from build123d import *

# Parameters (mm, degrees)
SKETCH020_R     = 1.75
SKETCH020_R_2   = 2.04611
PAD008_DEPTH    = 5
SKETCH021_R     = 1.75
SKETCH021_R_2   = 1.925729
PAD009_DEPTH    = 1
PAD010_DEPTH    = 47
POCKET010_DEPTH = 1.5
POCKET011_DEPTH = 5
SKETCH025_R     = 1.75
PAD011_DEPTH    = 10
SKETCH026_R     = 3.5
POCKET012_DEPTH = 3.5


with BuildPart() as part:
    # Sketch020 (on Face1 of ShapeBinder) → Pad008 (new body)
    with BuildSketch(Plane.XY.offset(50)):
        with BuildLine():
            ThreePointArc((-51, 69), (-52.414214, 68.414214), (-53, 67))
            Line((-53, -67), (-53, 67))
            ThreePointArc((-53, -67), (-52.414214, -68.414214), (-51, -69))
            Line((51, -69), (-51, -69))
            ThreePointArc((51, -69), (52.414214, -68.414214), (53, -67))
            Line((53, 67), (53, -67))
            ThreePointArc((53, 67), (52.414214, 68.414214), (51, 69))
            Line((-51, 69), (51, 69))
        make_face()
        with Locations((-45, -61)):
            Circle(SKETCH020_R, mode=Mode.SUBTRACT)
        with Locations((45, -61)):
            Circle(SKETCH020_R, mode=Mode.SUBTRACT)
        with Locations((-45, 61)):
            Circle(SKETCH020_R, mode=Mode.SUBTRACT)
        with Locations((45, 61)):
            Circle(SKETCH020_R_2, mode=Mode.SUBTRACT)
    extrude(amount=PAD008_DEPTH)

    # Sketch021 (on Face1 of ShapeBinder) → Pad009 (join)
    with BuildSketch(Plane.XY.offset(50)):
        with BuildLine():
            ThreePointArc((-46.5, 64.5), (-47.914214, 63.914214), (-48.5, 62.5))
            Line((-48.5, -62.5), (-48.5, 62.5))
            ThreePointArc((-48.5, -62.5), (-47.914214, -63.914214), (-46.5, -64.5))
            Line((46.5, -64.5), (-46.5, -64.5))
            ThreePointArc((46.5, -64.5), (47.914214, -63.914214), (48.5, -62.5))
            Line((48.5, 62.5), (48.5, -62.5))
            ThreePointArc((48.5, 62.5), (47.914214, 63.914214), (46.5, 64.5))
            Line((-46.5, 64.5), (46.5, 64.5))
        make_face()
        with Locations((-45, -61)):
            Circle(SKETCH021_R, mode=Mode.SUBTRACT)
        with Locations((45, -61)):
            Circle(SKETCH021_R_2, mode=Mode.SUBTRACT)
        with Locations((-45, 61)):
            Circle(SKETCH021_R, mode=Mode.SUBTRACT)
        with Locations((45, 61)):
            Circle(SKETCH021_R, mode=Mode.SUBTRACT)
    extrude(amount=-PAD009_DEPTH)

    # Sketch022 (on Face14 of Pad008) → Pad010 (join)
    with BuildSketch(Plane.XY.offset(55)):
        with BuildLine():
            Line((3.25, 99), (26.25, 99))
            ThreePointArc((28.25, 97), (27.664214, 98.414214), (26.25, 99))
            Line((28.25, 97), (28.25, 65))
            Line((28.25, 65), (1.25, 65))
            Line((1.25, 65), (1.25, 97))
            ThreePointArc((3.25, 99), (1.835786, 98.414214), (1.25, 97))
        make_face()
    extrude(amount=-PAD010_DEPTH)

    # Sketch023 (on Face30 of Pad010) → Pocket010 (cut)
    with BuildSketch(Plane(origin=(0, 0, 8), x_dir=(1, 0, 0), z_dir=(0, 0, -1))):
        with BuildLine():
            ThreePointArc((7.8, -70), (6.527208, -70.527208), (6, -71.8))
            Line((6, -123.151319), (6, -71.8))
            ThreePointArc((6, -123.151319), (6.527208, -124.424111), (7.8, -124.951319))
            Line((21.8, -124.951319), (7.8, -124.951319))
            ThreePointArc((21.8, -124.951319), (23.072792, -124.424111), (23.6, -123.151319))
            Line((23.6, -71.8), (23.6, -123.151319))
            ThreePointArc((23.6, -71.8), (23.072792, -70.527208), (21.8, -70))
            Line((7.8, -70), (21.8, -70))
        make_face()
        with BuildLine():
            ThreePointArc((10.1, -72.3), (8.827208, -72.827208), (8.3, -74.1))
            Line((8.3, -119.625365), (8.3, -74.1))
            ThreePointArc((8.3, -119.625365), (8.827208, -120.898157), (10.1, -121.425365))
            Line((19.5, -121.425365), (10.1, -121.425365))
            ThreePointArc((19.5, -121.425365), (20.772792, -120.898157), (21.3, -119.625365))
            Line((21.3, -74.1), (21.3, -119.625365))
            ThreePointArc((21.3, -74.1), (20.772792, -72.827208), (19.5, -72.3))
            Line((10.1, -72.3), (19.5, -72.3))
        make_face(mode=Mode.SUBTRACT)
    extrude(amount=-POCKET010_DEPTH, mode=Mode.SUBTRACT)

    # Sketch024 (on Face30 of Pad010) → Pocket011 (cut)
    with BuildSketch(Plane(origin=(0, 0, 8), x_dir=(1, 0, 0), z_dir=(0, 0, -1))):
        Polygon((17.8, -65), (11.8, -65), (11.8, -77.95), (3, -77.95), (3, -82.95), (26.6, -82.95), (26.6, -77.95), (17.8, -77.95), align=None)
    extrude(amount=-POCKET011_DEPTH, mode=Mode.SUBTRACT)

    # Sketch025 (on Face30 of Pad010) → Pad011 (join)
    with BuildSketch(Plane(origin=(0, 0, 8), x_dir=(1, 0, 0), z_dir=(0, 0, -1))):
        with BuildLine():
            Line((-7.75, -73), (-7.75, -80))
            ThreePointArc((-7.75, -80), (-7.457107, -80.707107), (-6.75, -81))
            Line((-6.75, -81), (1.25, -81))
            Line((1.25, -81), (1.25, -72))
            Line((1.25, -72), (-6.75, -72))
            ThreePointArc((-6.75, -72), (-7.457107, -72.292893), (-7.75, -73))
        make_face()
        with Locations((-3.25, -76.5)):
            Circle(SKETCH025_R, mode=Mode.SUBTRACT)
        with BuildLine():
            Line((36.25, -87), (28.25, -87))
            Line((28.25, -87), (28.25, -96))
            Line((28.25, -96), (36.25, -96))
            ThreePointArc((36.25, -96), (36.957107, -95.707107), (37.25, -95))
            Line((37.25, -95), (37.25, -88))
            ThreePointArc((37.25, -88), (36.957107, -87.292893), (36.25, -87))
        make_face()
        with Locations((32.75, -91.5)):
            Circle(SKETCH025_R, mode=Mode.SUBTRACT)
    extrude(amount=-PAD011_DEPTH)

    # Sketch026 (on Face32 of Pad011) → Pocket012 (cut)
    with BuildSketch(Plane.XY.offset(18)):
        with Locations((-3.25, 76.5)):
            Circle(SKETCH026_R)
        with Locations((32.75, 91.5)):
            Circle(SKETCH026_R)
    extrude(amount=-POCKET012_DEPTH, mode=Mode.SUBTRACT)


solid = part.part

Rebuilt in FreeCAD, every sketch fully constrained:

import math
import FreeCAD as App
import Part
import Sketcher
Q = App.Units.Quantity

doc = App.newDocument("Part")
params = doc.addObject("Spreadsheet::Sheet", "Params")
for row, (alias, value) in enumerate([
    ("sketch1_radius", "1.999999 mm"),
    ("sketch1_diameter", "3.5 mm"),
    ("sketch1_width", "102 mm"),
    ("sketch1_height", "134 mm"),
    ("pad1_length", "5 mm"),
    ("sketch2_radius", "1.999999 mm"),
    ("sketch2_diameter", "3.5 mm"),
    ("sketch2_width", "93 mm"),
    ("sketch2_height", "125 mm"),
    ("pad2_length", "1 mm"),
    ("sketch3_radius", "1.999999 mm"),
    ("sketch3_width", "23 mm"),
    ("sketch3_height", "32 mm"),
    ("pad3_length", "47 mm"),
    ("sketch4_radius", "1.800001 mm"),
    ("sketch4_width", "14 mm"),
    ("sketch4_width2", "9.4 mm"),
    ("pocket1_length", "1.5 mm"),
    ("sketch5_width", "6 mm"),
    ("sketch5_height", "5 mm"),
    ("sketch5_width2", "8.8 mm"),
    ("sketch5_height2", "12.95 mm"),
    ("pocket2_length", "5 mm"),
    ("sketch6_radius", "0.999999 mm"),
    ("sketch6_diameter", "3.5 mm"),
    ("sketch6_width", "8 mm"),
    ("sketch6_height", "7 mm"),
    ("pad4_length", "10 mm"),
    ("sketch7_diameter", "7 mm"),
    ("pocket3_length", "3.5 mm"),
], start=1):
    params.set(f"A{row}", alias)
    params.set(f"B{row}", "=" + value)
    params.setAlias(f"B{row}", alias)

body = doc.addObject("PartDesign::Body", "Body")

# Sketch on XY plane
sketch1 = doc.addObject("Sketcher::SketchObject", "Sketch")
body.addObject(sketch1)
sketch1.AttachmentSupport = (doc.XY_Plane, [""])
sketch1.MapMode = "FlatFace"
sketch1.AttachmentOffset = App.Placement(App.Vector(0, 0, 50), App.Rotation())
sketch1.addGeometry(Part.ArcOfCircle(Part.Circle(App.Vector(-51, 67, 0), App.Vector(0, 0, 1), 2), math.radians(90), math.radians(180)), False)
sketch1.addGeometry(Part.LineSegment(App.Vector(-53, 67, 0), App.Vector(-53, -67, 0)), False)
sketch1.addGeometry(Part.ArcOfCircle(Part.Circle(App.Vector(-51, -67, 0), App.Vector(0, 0, 1), 2), math.radians(180), math.radians(270)), False)
sketch1.addGeometry(Part.LineSegment(App.Vector(-51, -69, 0), App.Vector(51, -69, 0)), False)
sketch1.addGeometry(Part.ArcOfCircle(Part.Circle(App.Vector(51, -67, 0), App.Vector(0, 0, 1), 2), math.radians(-90), math.radians(0)), False)
sketch1.addGeometry(Part.LineSegment(App.Vector(53, -67, 0), App.Vector(53, 67, 0)), False)
sketch1.addGeometry(Part.ArcOfCircle(Part.Circle(App.Vector(51, 67, 0), App.Vector(0, 0, 1), 2), math.radians(0), math.radians(90)), False)
sketch1.addGeometry(Part.LineSegment(App.Vector(51, 69, 0), App.Vector(-51, 69, 0)), False)
sketch1.addGeometry(Part.Circle(App.Vector(-45, -61, 0), App.Vector(0, 0, 1), 1.8), False)
sketch1.addGeometry(Part.Circle(App.Vector(45, -61, 0), App.Vector(0, 0, 1), 1.8), False)
sketch1.addGeometry(Part.Circle(App.Vector(-45, 61, 0), App.Vector(0, 0, 1), 1.8), False)
sketch1.addGeometry(Part.Circle(App.Vector(45, 61, 0), App.Vector(0, 0, 1), 2), False)
sketch1.addConstraint(Sketcher.Constraint("Tangent", 0, 2, 1, 1))
sketch1.addConstraint(Sketcher.Constraint("Tangent", 1, 2, 2, 1))
sketch1.addConstraint(Sketcher.Constraint("Tangent", 2, 2, 3, 1))
sketch1.addConstraint(Sketcher.Constraint("Tangent", 3, 2, 4, 1))
sketch1.addConstraint(Sketcher.Constraint("Tangent", 4, 2, 5, 1))
sketch1.addConstraint(Sketcher.Constraint("Tangent", 5, 2, 6, 1))
sketch1.addConstraint(Sketcher.Constraint("Tangent", 6, 2, 7, 1))
sketch1.addConstraint(Sketcher.Constraint("Tangent", 7, 2, 0, 1))
sketch1.addConstraint(Sketcher.Constraint("Vertical", 1))
sketch1.addConstraint(Sketcher.Constraint("Horizontal", 3))
sketch1.addConstraint(Sketcher.Constraint("Vertical", 5))
sketch1.addConstraint(Sketcher.Constraint("Horizontal", 7))
sketch1.addConstraint(Sketcher.Constraint("Equal", 0, 2))
sketch1.addConstraint(Sketcher.Constraint("Equal", 2, 4))
sketch1.addConstraint(Sketcher.Constraint("Equal", 4, 6))
sketch1.addConstraint(Sketcher.Constraint("Equal", 8, 9))
sketch1.addConstraint(Sketcher.Constraint("Equal", 9, 10))
sketch1.addConstraint(Sketcher.Constraint("Symmetric", 0, 3, 4, 3, -1, 1))
sketch1.addConstraint(Sketcher.Constraint("Symmetric", 9, 3, 10, 3, -1, 1))
sketch1.addConstraint(Sketcher.Constraint("Symmetric", 8, 3, 11, 3, -1, 1))
sketch1.addConstraint(Sketcher.Constraint("Symmetric", 8, 3, 9, 3, -2))
sketch1.addConstraint(Sketcher.Constraint("Radius", 0, Q("1.999999 mm")))
sketch1.addConstraint(Sketcher.Constraint("Diameter", 8, Q("3.5 mm")))
sketch1.addConstraint(Sketcher.Constraint("DistanceX", 3, 1, 3, 2, Q("102 mm")))
sketch1.addConstraint(Sketcher.Constraint("DistanceY", 1, 2, 1, 1, Q("134 mm")))
sketch1.addConstraint(Sketcher.Constraint("DistanceX", 8, 3, -1, 1, Q("45 mm")))
sketch1.addConstraint(Sketcher.Constraint("DistanceY", 8, 3, -1, 1, Q("61 mm")))
sketch1.addConstraint(Sketcher.Constraint("Diameter", 11, Q("4.09222 mm")))
sketch1.setExpression("Constraints[21]", "Params.sketch1_radius")
sketch1.setExpression("Constraints[22]", "Params.sketch1_diameter")
sketch1.setExpression("Constraints[23]", "Params.sketch1_width")
sketch1.setExpression("Constraints[24]", "Params.sketch1_height")
pad1 = doc.addObject("PartDesign::Pad", "Pad")
body.addObject(pad1)
pad1.Profile = sketch1
pad1.setExpression("Length", "Params.pad1_length")

# Sketch on XY plane
sketch2 = doc.addObject("Sketcher::SketchObject", "Sketch001")
body.addObject(sketch2)
sketch2.AttachmentSupport = (doc.XY_Plane, [""])
sketch2.MapMode = "FlatFace"
sketch2.AttachmentOffset = App.Placement(App.Vector(0, 0, 50), App.Rotation())
sketch2.addGeometry(Part.ArcOfCircle(Part.Circle(App.Vector(-46.5, 62.5, 0), App.Vector(0, 0, 1), 2), math.radians(90), math.radians(180)), False)
sketch2.addGeometry(Part.LineSegment(App.Vector(-48.5, 62.5, 0), App.Vector(-48.5, -62.5, 0)), False)
sketch2.addGeometry(Part.ArcOfCircle(Part.Circle(App.Vector(-46.5, -62.5, 0), App.Vector(0, 0, 1), 2), math.radians(180), math.radians(270)), False)
sketch2.addGeometry(Part.LineSegment(App.Vector(-46.5, -64.5, 0), App.Vector(46.5, -64.5, 0)), False)
sketch2.addGeometry(Part.ArcOfCircle(Part.Circle(App.Vector(46.5, -62.5, 0), App.Vector(0, 0, 1), 2), math.radians(-90), math.radians(0)), False)
sketch2.addGeometry(Part.LineSegment(App.Vector(48.5, -62.5, 0), App.Vector(48.5, 62.5, 0)), False)
sketch2.addGeometry(Part.ArcOfCircle(Part.Circle(App.Vector(46.5, 62.5, 0), App.Vector(0, 0, 1), 2), math.radians(0), math.radians(90)), False)
sketch2.addGeometry(Part.LineSegment(App.Vector(46.5, 64.5, 0), App.Vector(-46.5, 64.5, 0)), False)
sketch2.addGeometry(Part.Circle(App.Vector(-45, -61, 0), App.Vector(0, 0, 1), 1.8), False)
sketch2.addGeometry(Part.Circle(App.Vector(45, -61, 0), App.Vector(0, 0, 1), 1.9), False)
sketch2.addGeometry(Part.Circle(App.Vector(-45, 61, 0), App.Vector(0, 0, 1), 1.8), False)
sketch2.addGeometry(Part.Circle(App.Vector(45, 61, 0), App.Vector(0, 0, 1), 1.8), False)
sketch2.addConstraint(Sketcher.Constraint("Tangent", 0, 2, 1, 1))
sketch2.addConstraint(Sketcher.Constraint("Tangent", 1, 2, 2, 1))
sketch2.addConstraint(Sketcher.Constraint("Tangent", 2, 2, 3, 1))
sketch2.addConstraint(Sketcher.Constraint("Tangent", 3, 2, 4, 1))
sketch2.addConstraint(Sketcher.Constraint("Tangent", 4, 2, 5, 1))
sketch2.addConstraint(Sketcher.Constraint("Tangent", 5, 2, 6, 1))
sketch2.addConstraint(Sketcher.Constraint("Tangent", 6, 2, 7, 1))
sketch2.addConstraint(Sketcher.Constraint("Tangent", 7, 2, 0, 1))
sketch2.addConstraint(Sketcher.Constraint("Vertical", 1))
sketch2.addConstraint(Sketcher.Constraint("Horizontal", 3))
sketch2.addConstraint(Sketcher.Constraint("Vertical", 5))
sketch2.addConstraint(Sketcher.Constraint("Horizontal", 7))
sketch2.addConstraint(Sketcher.Constraint("Equal", 0, 2))
sketch2.addConstraint(Sketcher.Constraint("Equal", 2, 4))
sketch2.addConstraint(Sketcher.Constraint("Equal", 4, 6))
sketch2.addConstraint(Sketcher.Constraint("Equal", 8, 10))
sketch2.addConstraint(Sketcher.Constraint("Equal", 10, 11))
sketch2.addConstraint(Sketcher.Constraint("Symmetric", 0, 3, 4, 3, -1, 1))
sketch2.addConstraint(Sketcher.Constraint("Symmetric", 9, 3, 10, 3, -1, 1))
sketch2.addConstraint(Sketcher.Constraint("Symmetric", 8, 3, 11, 3, -1, 1))
sketch2.addConstraint(Sketcher.Constraint("Symmetric", 8, 3, 9, 3, -2))
sketch2.addConstraint(Sketcher.Constraint("Radius", 0, Q("1.999999 mm")))
sketch2.addConstraint(Sketcher.Constraint("Diameter", 8, Q("3.5 mm")))
sketch2.addConstraint(Sketcher.Constraint("DistanceX", 3, 1, 3, 2, Q("93 mm")))
sketch2.addConstraint(Sketcher.Constraint("DistanceY", 1, 2, 1, 1, Q("125 mm")))
sketch2.addConstraint(Sketcher.Constraint("DistanceX", 8, 3, -1, 1, Q("45 mm")))
sketch2.addConstraint(Sketcher.Constraint("DistanceY", 8, 3, -1, 1, Q("61 mm")))
sketch2.addConstraint(Sketcher.Constraint("Diameter", 9, Q("3.851458 mm")))
sketch2.setExpression("Constraints[21]", "Params.sketch2_radius")
sketch2.setExpression("Constraints[22]", "Params.sketch2_diameter")
sketch2.setExpression("Constraints[23]", "Params.sketch2_width")
sketch2.setExpression("Constraints[24]", "Params.sketch2_height")
pad2 = doc.addObject("PartDesign::Pad", "Pad001")
body.addObject(pad2)
pad2.Profile = sketch2
pad2.setExpression("Length", "Params.pad2_length")
pad2.Reversed = True

# Sketch on XY plane
sketch3 = doc.addObject("Sketcher::SketchObject", "Sketch002")
body.addObject(sketch3)
sketch3.AttachmentSupport = (doc.XY_Plane, [""])
sketch3.MapMode = "FlatFace"
sketch3.AttachmentOffset = App.Placement(App.Vector(0, 0, 55), App.Rotation())
sketch3.addGeometry(Part.LineSegment(App.Vector(26.2, 99, 0), App.Vector(3.2, 99, 0)), False)
sketch3.addGeometry(Part.ArcOfCircle(Part.Circle(App.Vector(3.2, 97, 0), App.Vector(0, 0, 1), 2), math.radians(90), math.radians(180)), False)
sketch3.addGeometry(Part.LineSegment(App.Vector(1.2, 97, 0), App.Vector(1.2, 65, 0)), False)
sketch3.addGeometry(Part.LineSegment(App.Vector(1.2, 65, 0), App.Vector(28.2, 65, 0)), False)
sketch3.addGeometry(Part.LineSegment(App.Vector(28.2, 65, 0), App.Vector(28.2, 97, 0)), False)
sketch3.addGeometry(Part.ArcOfCircle(Part.Circle(App.Vector(26.3, 97, 0), App.Vector(0, 0, 1), 2), math.radians(0), math.radians(90)), False)
sketch3.addConstraint(Sketcher.Constraint("Tangent", 0, 2, 1, 1))
sketch3.addConstraint(Sketcher.Constraint("Tangent", 1, 2, 2, 1))
sketch3.addConstraint(Sketcher.Constraint("Coincident", 2, 2, 3, 1))
sketch3.addConstraint(Sketcher.Constraint("Coincident", 3, 2, 4, 1))
sketch3.addConstraint(Sketcher.Constraint("Tangent", 4, 2, 5, 1))
sketch3.addConstraint(Sketcher.Constraint("Tangent", 5, 2, 0, 1))
sketch3.addConstraint(Sketcher.Constraint("Horizontal", 0))
sketch3.addConstraint(Sketcher.Constraint("Vertical", 2))
sketch3.addConstraint(Sketcher.Constraint("Horizontal", 3))
sketch3.addConstraint(Sketcher.Constraint("Vertical", 4))
sketch3.addConstraint(Sketcher.Constraint("Equal", 1, 5))
sketch3.addConstraint(Sketcher.Constraint("Radius", 1, Q("1.999999 mm")))
sketch3.addConstraint(Sketcher.Constraint("DistanceX", 0, 2, 0, 1, Q("23 mm")))
sketch3.addConstraint(Sketcher.Constraint("DistanceY", 2, 2, 2, 1, Q("32 mm")))
sketch3.addConstraint(Sketcher.Constraint("DistanceY", -1, 1, 1, 3, Q("97.000001 mm")))
sketch3.addConstraint(Sketcher.Constraint("DistanceX", -1, 1, 1, 3, Q("3.249999 mm")))
sketch3.setExpression("Constraints[11]", "Params.sketch3_radius")
sketch3.setExpression("Constraints[12]", "Params.sketch3_width")
sketch3.setExpression("Constraints[13]", "Params.sketch3_height")
pad3 = doc.addObject("PartDesign::Pad", "Pad002")
body.addObject(pad3)
pad3.Profile = sketch3
pad3.setExpression("Length", "Params.pad3_length")
pad3.Reversed = True

# Sketch on XY plane
sketch4 = doc.addObject("Sketcher::SketchObject", "Sketch003")
body.addObject(sketch4)
sketch4.AttachmentSupport = (doc.XY_Plane, [""])
sketch4.MapMode = "FlatFace"
sketch4.AttachmentOffset = App.Placement(App.Vector(0, 0, 8), App.Rotation())
sketch4.addGeometry(Part.ArcOfCircle(Part.Circle(App.Vector(7.8, 71.8, 0), App.Vector(0, 0, 1), 1.8), math.radians(-180), math.radians(-90)), False)
sketch4.addGeometry(Part.LineSegment(App.Vector(6, 71.8, 0), App.Vector(6, 123.2, 0)), False)
sketch4.addGeometry(Part.ArcOfCircle(Part.Circle(App.Vector(7.8, 123.2, 0), App.Vector(0, 0, 1), 1.8), math.radians(90), math.radians(180)), False)
sketch4.addGeometry(Part.LineSegment(App.Vector(7.8, 125, 0), App.Vector(21.8, 125, 0)), False)
sketch4.addGeometry(Part.ArcOfCircle(Part.Circle(App.Vector(21.8, 123.2, 0), App.Vector(0, 0, 1), 1.8), math.radians(0), math.radians(90)), False)
sketch4.addGeometry(Part.LineSegment(App.Vector(23.6, 123.2, 0), App.Vector(23.6, 71.8, 0)), False)
sketch4.addGeometry(Part.ArcOfCircle(Part.Circle(App.Vector(21.8, 71.8, 0), App.Vector(0, 0, 1), 1.8), math.radians(-90), math.radians(0)), False)
sketch4.addGeometry(Part.LineSegment(App.Vector(21.8, 70, 0), App.Vector(7.8, 70, 0)), False)
sketch4.addGeometry(Part.ArcOfCircle(Part.Circle(App.Vector(10.1, 74.1, 0), App.Vector(0, 0, 1), 1.8), math.radians(-180), math.radians(-90)), False)
sketch4.addGeometry(Part.LineSegment(App.Vector(10.1, 72.3, 0), App.Vector(19.5, 72.3, 0)), False)
sketch4.addGeometry(Part.ArcOfCircle(Part.Circle(App.Vector(19.5, 74.1, 0), App.Vector(0, 0, 1), 1.8), math.radians(-90), math.radians(0)), False)
sketch4.addGeometry(Part.LineSegment(App.Vector(21.3, 74.1, 0), App.Vector(21.3, 119.6, 0)), False)
sketch4.addGeometry(Part.ArcOfCircle(Part.Circle(App.Vector(19.5, 119.6, 0), App.Vector(0, 0, 1), 1.8), math.radians(0), math.radians(90)), False)
sketch4.addGeometry(Part.LineSegment(App.Vector(19.5, 121.4, 0), App.Vector(10.1, 121.4, 0)), False)
sketch4.addGeometry(Part.ArcOfCircle(Part.Circle(App.Vector(10.1, 119.6, 0), App.Vector(0, 0, 1), 1.8), math.radians(90), math.radians(180)), False)
sketch4.addGeometry(Part.LineSegment(App.Vector(8.3, 119.6, 0), App.Vector(8.3, 74.1, 0)), False)
sketch4.addConstraint(Sketcher.Constraint("Tangent", 0, 1, 1, 1))
sketch4.addConstraint(Sketcher.Constraint("Tangent", 1, 2, 2, 2))
sketch4.addConstraint(Sketcher.Constraint("Tangent", 2, 1, 3, 1))
sketch4.addConstraint(Sketcher.Constraint("Tangent", 3, 2, 4, 2))
sketch4.addConstraint(Sketcher.Constraint("Tangent", 4, 1, 5, 1))
sketch4.addConstraint(Sketcher.Constraint("Tangent", 5, 2, 6, 2))
sketch4.addConstraint(Sketcher.Constraint("Tangent", 6, 1, 7, 1))
sketch4.addConstraint(Sketcher.Constraint("Tangent", 7, 2, 0, 2))
sketch4.addConstraint(Sketcher.Constraint("Tangent", 8, 2, 9, 1))
sketch4.addConstraint(Sketcher.Constraint("Tangent", 9, 2, 10, 1))
sketch4.addConstraint(Sketcher.Constraint("Tangent", 10, 2, 11, 1))
sketch4.addConstraint(Sketcher.Constraint("Tangent", 11, 2, 12, 1))
sketch4.addConstraint(Sketcher.Constraint("Tangent", 12, 2, 13, 1))
sketch4.addConstraint(Sketcher.Constraint("Tangent", 13, 2, 14, 1))
sketch4.addConstraint(Sketcher.Constraint("Tangent", 14, 2, 15, 1))
sketch4.addConstraint(Sketcher.Constraint("Tangent", 15, 2, 8, 1))
sketch4.addConstraint(Sketcher.Constraint("Vertical", 1))
sketch4.addConstraint(Sketcher.Constraint("Horizontal", 3))
sketch4.addConstraint(Sketcher.Constraint("Vertical", 5))
sketch4.addConstraint(Sketcher.Constraint("Horizontal", 7))
sketch4.addConstraint(Sketcher.Constraint("Horizontal", 9))
sketch4.addConstraint(Sketcher.Constraint("Vertical", 11))
sketch4.addConstraint(Sketcher.Constraint("Horizontal", 13))
sketch4.addConstraint(Sketcher.Constraint("Vertical", 15))
sketch4.addConstraint(Sketcher.Constraint("Equal", 0, 2))
sketch4.addConstraint(Sketcher.Constraint("Equal", 2, 4))
sketch4.addConstraint(Sketcher.Constraint("Equal", 4, 6))
sketch4.addConstraint(Sketcher.Constraint("Equal", 6, 8))
sketch4.addConstraint(Sketcher.Constraint("Equal", 8, 10))
sketch4.addConstraint(Sketcher.Constraint("Equal", 10, 12))
sketch4.addConstraint(Sketcher.Constraint("Equal", 12, 14))
sketch4.addConstraint(Sketcher.Constraint("Radius", 0, Q("1.800001 mm")))
sketch4.addConstraint(Sketcher.Constraint("DistanceX", 3, 1, 3, 2, Q("14 mm")))
sketch4.addConstraint(Sketcher.Constraint("DistanceX", 9, 1, 9, 2, Q("9.4 mm")))
sketch4.addConstraint(Sketcher.Constraint("DistanceX", -1, 1, 0, 1, Q("6 mm")))
sketch4.addConstraint(Sketcher.Constraint("DistanceY", -1, 1, 6, 1, Q("70 mm")))
sketch4.addConstraint(Sketcher.Constraint("DistanceX", -1, 1, 8, 3, Q("10.100001 mm")))
sketch4.addConstraint(Sketcher.Constraint("DistanceY", -1, 1, 8, 3, Q("74.100001 mm")))
sketch4.addConstraint(Sketcher.Constraint("DistanceY", 1, 1, 1, 2, Q("51.351319 mm")))
sketch4.addConstraint(Sketcher.Constraint("DistanceY", 11, 1, 11, 2, Q("45.525365 mm")))
sketch4.setExpression("Constraints[31]", "Params.sketch4_radius")
sketch4.setExpression("Constraints[32]", "Params.sketch4_width")
sketch4.setExpression("Constraints[33]", "Params.sketch4_width2")
pocket1 = doc.addObject("PartDesign::Pocket", "Pocket")
body.addObject(pocket1)
pocket1.Profile = sketch4
pocket1.setExpression("Length", "Params.pocket1_length")
pocket1.Reversed = True

# Sketch on XY plane
sketch5 = doc.addObject("Sketcher::SketchObject", "Sketch004")
body.addObject(sketch5)
sketch5.AttachmentSupport = (doc.XY_Plane, [""])
sketch5.MapMode = "FlatFace"
sketch5.AttachmentOffset = App.Placement(App.Vector(0, 0, 8), App.Rotation())
sketch5.addGeometry(Part.LineSegment(App.Vector(18, 65, 0), App.Vector(12, 65, 0)), False)
sketch5.addGeometry(Part.LineSegment(App.Vector(12, 65, 0), App.Vector(12, 78, 0)), False)
sketch5.addGeometry(Part.LineSegment(App.Vector(12, 78, 0), App.Vector(3, 78, 0)), False)
sketch5.addGeometry(Part.LineSegment(App.Vector(3, 78, 0), App.Vector(3, 83, 0)), False)
sketch5.addGeometry(Part.LineSegment(App.Vector(3, 83, 0), App.Vector(27, 83, 0)), False)
sketch5.addGeometry(Part.LineSegment(App.Vector(27, 83, 0), App.Vector(27, 78, 0)), False)
sketch5.addGeometry(Part.LineSegment(App.Vector(27, 78, 0), App.Vector(18, 78, 0)), False)
sketch5.addGeometry(Part.LineSegment(App.Vector(18, 78, 0), App.Vector(18, 65, 0)), False)
sketch5.addConstraint(Sketcher.Constraint("Coincident", 0, 2, 1, 1))
sketch5.addConstraint(Sketcher.Constraint("Coincident", 1, 2, 2, 1))
sketch5.addConstraint(Sketcher.Constraint("Coincident", 2, 2, 3, 1))
sketch5.addConstraint(Sketcher.Constraint("Coincident", 3, 2, 4, 1))
sketch5.addConstraint(Sketcher.Constraint("Coincident", 4, 2, 5, 1))
sketch5.addConstraint(Sketcher.Constraint("Coincident", 5, 2, 6, 1))
sketch5.addConstraint(Sketcher.Constraint("Coincident", 6, 2, 7, 1))
sketch5.addConstraint(Sketcher.Constraint("Coincident", 7, 2, 0, 1))
sketch5.addConstraint(Sketcher.Constraint("Horizontal", 0))
sketch5.addConstraint(Sketcher.Constraint("Vertical", 1))
sketch5.addConstraint(Sketcher.Constraint("Horizontal", 2))
sketch5.addConstraint(Sketcher.Constraint("Vertical", 3))
sketch5.addConstraint(Sketcher.Constraint("Horizontal", 4))
sketch5.addConstraint(Sketcher.Constraint("Vertical", 5))
sketch5.addConstraint(Sketcher.Constraint("Horizontal", 6))
sketch5.addConstraint(Sketcher.Constraint("Vertical", 7))
sketch5.addConstraint(Sketcher.Constraint("Horizontal", 2, 2, 5, 2))
sketch5.addConstraint(Sketcher.Constraint("Equal", 2, 6))
sketch5.addConstraint(Sketcher.Constraint("DistanceX", 0, 2, 0, 1, Q("6 mm")))
sketch5.addConstraint(Sketcher.Constraint("DistanceY", 3, 1, 3, 2, Q("5 mm")))
sketch5.addConstraint(Sketcher.Constraint("DistanceX", 2, 2, 2, 1, Q("8.8 mm")))
sketch5.addConstraint(Sketcher.Constraint("DistanceY", -1, 1, 0, 2, Q("65 mm")))
sketch5.addConstraint(Sketcher.Constraint("DistanceX", -1, 1, 2, 2, Q("3 mm")))
sketch5.addConstraint(Sketcher.Constraint("DistanceY", 1, 1, 1, 2, Q("12.95 mm")))
sketch5.setExpression("Constraints[18]", "Params.sketch5_width")
sketch5.setExpression("Constraints[19]", "Params.sketch5_height")
sketch5.setExpression("Constraints[20]", "Params.sketch5_width2")
sketch5.setExpression("Constraints[23]", "Params.sketch5_height2")
pocket2 = doc.addObject("PartDesign::Pocket", "Pocket001")
body.addObject(pocket2)
pocket2.Profile = sketch5
pocket2.setExpression("Length", "Params.pocket2_length")
pocket2.Reversed = True

# Sketch on XY plane
sketch6 = doc.addObject("Sketcher::SketchObject", "Sketch005")
body.addObject(sketch6)
sketch6.AttachmentSupport = (doc.XY_Plane, [""])
sketch6.MapMode = "FlatFace"
sketch6.AttachmentOffset = App.Placement(App.Vector(0, 0, 8), App.Rotation())
sketch6.addGeometry(Part.LineSegment(App.Vector(-7.8, 73, 0), App.Vector(-7.8, 80, 0)), False)
sketch6.addGeometry(Part.ArcOfCircle(Part.Circle(App.Vector(-6.8, 80, 0), App.Vector(0, 0, 1), 1), math.radians(90), math.radians(180)), False)
sketch6.addGeometry(Part.LineSegment(App.Vector(-6.8, 81, 0), App.Vector(1.2, 81, 0)), False)
sketch6.addGeometry(Part.LineSegment(App.Vector(1.2, 81, 0), App.Vector(1.2, 72, 0)), False)
sketch6.addGeometry(Part.LineSegment(App.Vector(1.2, 72, 0), App.Vector(-6.8, 72, 0)), False)
sketch6.addGeometry(Part.ArcOfCircle(Part.Circle(App.Vector(-6.8, 73, 0), App.Vector(0, 0, 1), 1), math.radians(180), math.radians(270)), False)
sketch6.addGeometry(Part.Circle(App.Vector(-3.2, 76.5, 0), App.Vector(0, 0, 1), 1.8), False)
sketch6.addGeometry(Part.LineSegment(App.Vector(36.2, 87, 0), App.Vector(28.2, 87, 0)), False)
sketch6.addGeometry(Part.LineSegment(App.Vector(28.2, 87, 0), App.Vector(28.2, 96, 0)), False)
sketch6.addGeometry(Part.LineSegment(App.Vector(28.2, 96, 0), App.Vector(36.2, 96, 0)), False)
sketch6.addGeometry(Part.ArcOfCircle(Part.Circle(App.Vector(36.3, 95, 0), App.Vector(0, 0, 1), 1), math.radians(0), math.radians(90)), False)
sketch6.addGeometry(Part.LineSegment(App.Vector(37.2, 95, 0), App.Vector(37.2, 88, 0)), False)
sketch6.addGeometry(Part.ArcOfCircle(Part.Circle(App.Vector(36.3, 88, 0), App.Vector(0, 0, 1), 1), math.radians(-90), math.radians(0)), False)
sketch6.addGeometry(Part.Circle(App.Vector(32.8, 91.5, 0), App.Vector(0, 0, 1), 1.8), False)
sketch6.addConstraint(Sketcher.Constraint("Tangent", 0, 2, 1, 2))
sketch6.addConstraint(Sketcher.Constraint("Tangent", 1, 1, 2, 1))
sketch6.addConstraint(Sketcher.Constraint("Coincident", 2, 2, 3, 1))
sketch6.addConstraint(Sketcher.Constraint("Coincident", 3, 2, 4, 1))
sketch6.addConstraint(Sketcher.Constraint("Tangent", 4, 2, 5, 2))
sketch6.addConstraint(Sketcher.Constraint("Tangent", 5, 1, 0, 1))
sketch6.addConstraint(Sketcher.Constraint("Coincident", 7, 2, 8, 1))
sketch6.addConstraint(Sketcher.Constraint("Coincident", 8, 2, 9, 1))
sketch6.addConstraint(Sketcher.Constraint("Tangent", 9, 2, 10, 2))
sketch6.addConstraint(Sketcher.Constraint("Tangent", 10, 1, 11, 1))
sketch6.addConstraint(Sketcher.Constraint("Tangent", 11, 2, 12, 2))
sketch6.addConstraint(Sketcher.Constraint("Tangent", 12, 1, 7, 1))
sketch6.addConstraint(Sketcher.Constraint("Vertical", 0))
sketch6.addConstraint(Sketcher.Constraint("Horizontal", 2))
sketch6.addConstraint(Sketcher.Constraint("Vertical", 3))
sketch6.addConstraint(Sketcher.Constraint("Horizontal", 4))
sketch6.addConstraint(Sketcher.Constraint("Horizontal", 7))
sketch6.addConstraint(Sketcher.Constraint("Vertical", 8))
sketch6.addConstraint(Sketcher.Constraint("Horizontal", 9))
sketch6.addConstraint(Sketcher.Constraint("Vertical", 11))
sketch6.addConstraint(Sketcher.Constraint("Equal", 1, 5))
sketch6.addConstraint(Sketcher.Constraint("Equal", 5, 10))
sketch6.addConstraint(Sketcher.Constraint("Equal", 10, 12))
sketch6.addConstraint(Sketcher.Constraint("Equal", 6, 13))
sketch6.addConstraint(Sketcher.Constraint("Equal", 4, 7))
sketch6.addConstraint(Sketcher.Constraint("Equal", 3, 8))
sketch6.addConstraint(Sketcher.Constraint("Radius", 1, Q("0.999999 mm")))
sketch6.addConstraint(Sketcher.Constraint("Diameter", 6, Q("3.5 mm")))
sketch6.addConstraint(Sketcher.Constraint("DistanceX", 2, 1, 2, 2, Q("8 mm")))
sketch6.addConstraint(Sketcher.Constraint("DistanceY", 0, 1, 0, 2, Q("7 mm")))
sketch6.addConstraint(Sketcher.Constraint("DistanceY", -1, 1, 1, 3, Q("80.000001 mm")))
sketch6.addConstraint(Sketcher.Constraint("DistanceY", -1, 1, 10, 3, Q("95.000001 mm")))
sketch6.addConstraint(Sketcher.Constraint("DistanceX", 1, 3, 10, 3, Q("43.000001 mm")))
sketch6.addConstraint(Sketcher.Constraint("DistanceX", 6, 3, 13, 3, Q("36 mm")))
sketch6.addConstraint(Sketcher.Constraint("DistanceY", 6, 3, 13, 3, Q("15 mm")))
sketch6.addConstraint(Sketcher.Constraint("DistanceY", -1, 1, 6, 3, Q("76.5 mm")))
sketch6.addConstraint(Sketcher.Constraint("DistanceX", 1, 3, 6, 3, Q("3.500001 mm")))
sketch6.addConstraint(Sketcher.Constraint("DistanceX", 1, 3, -1, 1, Q("6.750001 mm")))
sketch6.setExpression("Constraints[26]", "Params.sketch6_radius")
sketch6.setExpression("Constraints[27]", "Params.sketch6_diameter")
sketch6.setExpression("Constraints[28]", "Params.sketch6_width")
sketch6.setExpression("Constraints[29]", "Params.sketch6_height")
pad4 = doc.addObject("PartDesign::Pad", "Pad003")
body.addObject(pad4)
pad4.Profile = sketch6
pad4.setExpression("Length", "Params.pad4_length")

# Sketch on XY plane
sketch7 = doc.addObject("Sketcher::SketchObject", "Sketch006")
body.addObject(sketch7)
sketch7.AttachmentSupport = (doc.XY_Plane, [""])
sketch7.MapMode = "FlatFace"
sketch7.AttachmentOffset = App.Placement(App.Vector(0, 0, 18), App.Rotation())
sketch7.addGeometry(Part.Circle(App.Vector(-3.2, 76.5, 0), App.Vector(0, 0, 1), 3.5), False)
sketch7.addGeometry(Part.Circle(App.Vector(32.8, 91.5, 0), App.Vector(0, 0, 1), 3.5), False)
sketch7.addConstraint(Sketcher.Constraint("Equal", 0, 1))
sketch7.addConstraint(Sketcher.Constraint("Diameter", 0, Q("7 mm")))
sketch7.addConstraint(Sketcher.Constraint("DistanceX", 0, 3, 1, 3, Q("36 mm")))
sketch7.addConstraint(Sketcher.Constraint("DistanceY", 0, 3, 1, 3, Q("15 mm")))
sketch7.addConstraint(Sketcher.Constraint("DistanceY", -1, 1, 0, 3, Q("76.5 mm")))
sketch7.addConstraint(Sketcher.Constraint("DistanceX", 0, 3, -1, 1, Q("3.25 mm")))
sketch7.setExpression("Constraints[1]", "Params.sketch7_diameter")
pocket3 = doc.addObject("PartDesign::Pocket", "Pocket002")
body.addObject(pocket3)
pocket3.Profile = sketch7
pocket3.setExpression("Length", "Params.pocket3_length")

doc.recompute()
